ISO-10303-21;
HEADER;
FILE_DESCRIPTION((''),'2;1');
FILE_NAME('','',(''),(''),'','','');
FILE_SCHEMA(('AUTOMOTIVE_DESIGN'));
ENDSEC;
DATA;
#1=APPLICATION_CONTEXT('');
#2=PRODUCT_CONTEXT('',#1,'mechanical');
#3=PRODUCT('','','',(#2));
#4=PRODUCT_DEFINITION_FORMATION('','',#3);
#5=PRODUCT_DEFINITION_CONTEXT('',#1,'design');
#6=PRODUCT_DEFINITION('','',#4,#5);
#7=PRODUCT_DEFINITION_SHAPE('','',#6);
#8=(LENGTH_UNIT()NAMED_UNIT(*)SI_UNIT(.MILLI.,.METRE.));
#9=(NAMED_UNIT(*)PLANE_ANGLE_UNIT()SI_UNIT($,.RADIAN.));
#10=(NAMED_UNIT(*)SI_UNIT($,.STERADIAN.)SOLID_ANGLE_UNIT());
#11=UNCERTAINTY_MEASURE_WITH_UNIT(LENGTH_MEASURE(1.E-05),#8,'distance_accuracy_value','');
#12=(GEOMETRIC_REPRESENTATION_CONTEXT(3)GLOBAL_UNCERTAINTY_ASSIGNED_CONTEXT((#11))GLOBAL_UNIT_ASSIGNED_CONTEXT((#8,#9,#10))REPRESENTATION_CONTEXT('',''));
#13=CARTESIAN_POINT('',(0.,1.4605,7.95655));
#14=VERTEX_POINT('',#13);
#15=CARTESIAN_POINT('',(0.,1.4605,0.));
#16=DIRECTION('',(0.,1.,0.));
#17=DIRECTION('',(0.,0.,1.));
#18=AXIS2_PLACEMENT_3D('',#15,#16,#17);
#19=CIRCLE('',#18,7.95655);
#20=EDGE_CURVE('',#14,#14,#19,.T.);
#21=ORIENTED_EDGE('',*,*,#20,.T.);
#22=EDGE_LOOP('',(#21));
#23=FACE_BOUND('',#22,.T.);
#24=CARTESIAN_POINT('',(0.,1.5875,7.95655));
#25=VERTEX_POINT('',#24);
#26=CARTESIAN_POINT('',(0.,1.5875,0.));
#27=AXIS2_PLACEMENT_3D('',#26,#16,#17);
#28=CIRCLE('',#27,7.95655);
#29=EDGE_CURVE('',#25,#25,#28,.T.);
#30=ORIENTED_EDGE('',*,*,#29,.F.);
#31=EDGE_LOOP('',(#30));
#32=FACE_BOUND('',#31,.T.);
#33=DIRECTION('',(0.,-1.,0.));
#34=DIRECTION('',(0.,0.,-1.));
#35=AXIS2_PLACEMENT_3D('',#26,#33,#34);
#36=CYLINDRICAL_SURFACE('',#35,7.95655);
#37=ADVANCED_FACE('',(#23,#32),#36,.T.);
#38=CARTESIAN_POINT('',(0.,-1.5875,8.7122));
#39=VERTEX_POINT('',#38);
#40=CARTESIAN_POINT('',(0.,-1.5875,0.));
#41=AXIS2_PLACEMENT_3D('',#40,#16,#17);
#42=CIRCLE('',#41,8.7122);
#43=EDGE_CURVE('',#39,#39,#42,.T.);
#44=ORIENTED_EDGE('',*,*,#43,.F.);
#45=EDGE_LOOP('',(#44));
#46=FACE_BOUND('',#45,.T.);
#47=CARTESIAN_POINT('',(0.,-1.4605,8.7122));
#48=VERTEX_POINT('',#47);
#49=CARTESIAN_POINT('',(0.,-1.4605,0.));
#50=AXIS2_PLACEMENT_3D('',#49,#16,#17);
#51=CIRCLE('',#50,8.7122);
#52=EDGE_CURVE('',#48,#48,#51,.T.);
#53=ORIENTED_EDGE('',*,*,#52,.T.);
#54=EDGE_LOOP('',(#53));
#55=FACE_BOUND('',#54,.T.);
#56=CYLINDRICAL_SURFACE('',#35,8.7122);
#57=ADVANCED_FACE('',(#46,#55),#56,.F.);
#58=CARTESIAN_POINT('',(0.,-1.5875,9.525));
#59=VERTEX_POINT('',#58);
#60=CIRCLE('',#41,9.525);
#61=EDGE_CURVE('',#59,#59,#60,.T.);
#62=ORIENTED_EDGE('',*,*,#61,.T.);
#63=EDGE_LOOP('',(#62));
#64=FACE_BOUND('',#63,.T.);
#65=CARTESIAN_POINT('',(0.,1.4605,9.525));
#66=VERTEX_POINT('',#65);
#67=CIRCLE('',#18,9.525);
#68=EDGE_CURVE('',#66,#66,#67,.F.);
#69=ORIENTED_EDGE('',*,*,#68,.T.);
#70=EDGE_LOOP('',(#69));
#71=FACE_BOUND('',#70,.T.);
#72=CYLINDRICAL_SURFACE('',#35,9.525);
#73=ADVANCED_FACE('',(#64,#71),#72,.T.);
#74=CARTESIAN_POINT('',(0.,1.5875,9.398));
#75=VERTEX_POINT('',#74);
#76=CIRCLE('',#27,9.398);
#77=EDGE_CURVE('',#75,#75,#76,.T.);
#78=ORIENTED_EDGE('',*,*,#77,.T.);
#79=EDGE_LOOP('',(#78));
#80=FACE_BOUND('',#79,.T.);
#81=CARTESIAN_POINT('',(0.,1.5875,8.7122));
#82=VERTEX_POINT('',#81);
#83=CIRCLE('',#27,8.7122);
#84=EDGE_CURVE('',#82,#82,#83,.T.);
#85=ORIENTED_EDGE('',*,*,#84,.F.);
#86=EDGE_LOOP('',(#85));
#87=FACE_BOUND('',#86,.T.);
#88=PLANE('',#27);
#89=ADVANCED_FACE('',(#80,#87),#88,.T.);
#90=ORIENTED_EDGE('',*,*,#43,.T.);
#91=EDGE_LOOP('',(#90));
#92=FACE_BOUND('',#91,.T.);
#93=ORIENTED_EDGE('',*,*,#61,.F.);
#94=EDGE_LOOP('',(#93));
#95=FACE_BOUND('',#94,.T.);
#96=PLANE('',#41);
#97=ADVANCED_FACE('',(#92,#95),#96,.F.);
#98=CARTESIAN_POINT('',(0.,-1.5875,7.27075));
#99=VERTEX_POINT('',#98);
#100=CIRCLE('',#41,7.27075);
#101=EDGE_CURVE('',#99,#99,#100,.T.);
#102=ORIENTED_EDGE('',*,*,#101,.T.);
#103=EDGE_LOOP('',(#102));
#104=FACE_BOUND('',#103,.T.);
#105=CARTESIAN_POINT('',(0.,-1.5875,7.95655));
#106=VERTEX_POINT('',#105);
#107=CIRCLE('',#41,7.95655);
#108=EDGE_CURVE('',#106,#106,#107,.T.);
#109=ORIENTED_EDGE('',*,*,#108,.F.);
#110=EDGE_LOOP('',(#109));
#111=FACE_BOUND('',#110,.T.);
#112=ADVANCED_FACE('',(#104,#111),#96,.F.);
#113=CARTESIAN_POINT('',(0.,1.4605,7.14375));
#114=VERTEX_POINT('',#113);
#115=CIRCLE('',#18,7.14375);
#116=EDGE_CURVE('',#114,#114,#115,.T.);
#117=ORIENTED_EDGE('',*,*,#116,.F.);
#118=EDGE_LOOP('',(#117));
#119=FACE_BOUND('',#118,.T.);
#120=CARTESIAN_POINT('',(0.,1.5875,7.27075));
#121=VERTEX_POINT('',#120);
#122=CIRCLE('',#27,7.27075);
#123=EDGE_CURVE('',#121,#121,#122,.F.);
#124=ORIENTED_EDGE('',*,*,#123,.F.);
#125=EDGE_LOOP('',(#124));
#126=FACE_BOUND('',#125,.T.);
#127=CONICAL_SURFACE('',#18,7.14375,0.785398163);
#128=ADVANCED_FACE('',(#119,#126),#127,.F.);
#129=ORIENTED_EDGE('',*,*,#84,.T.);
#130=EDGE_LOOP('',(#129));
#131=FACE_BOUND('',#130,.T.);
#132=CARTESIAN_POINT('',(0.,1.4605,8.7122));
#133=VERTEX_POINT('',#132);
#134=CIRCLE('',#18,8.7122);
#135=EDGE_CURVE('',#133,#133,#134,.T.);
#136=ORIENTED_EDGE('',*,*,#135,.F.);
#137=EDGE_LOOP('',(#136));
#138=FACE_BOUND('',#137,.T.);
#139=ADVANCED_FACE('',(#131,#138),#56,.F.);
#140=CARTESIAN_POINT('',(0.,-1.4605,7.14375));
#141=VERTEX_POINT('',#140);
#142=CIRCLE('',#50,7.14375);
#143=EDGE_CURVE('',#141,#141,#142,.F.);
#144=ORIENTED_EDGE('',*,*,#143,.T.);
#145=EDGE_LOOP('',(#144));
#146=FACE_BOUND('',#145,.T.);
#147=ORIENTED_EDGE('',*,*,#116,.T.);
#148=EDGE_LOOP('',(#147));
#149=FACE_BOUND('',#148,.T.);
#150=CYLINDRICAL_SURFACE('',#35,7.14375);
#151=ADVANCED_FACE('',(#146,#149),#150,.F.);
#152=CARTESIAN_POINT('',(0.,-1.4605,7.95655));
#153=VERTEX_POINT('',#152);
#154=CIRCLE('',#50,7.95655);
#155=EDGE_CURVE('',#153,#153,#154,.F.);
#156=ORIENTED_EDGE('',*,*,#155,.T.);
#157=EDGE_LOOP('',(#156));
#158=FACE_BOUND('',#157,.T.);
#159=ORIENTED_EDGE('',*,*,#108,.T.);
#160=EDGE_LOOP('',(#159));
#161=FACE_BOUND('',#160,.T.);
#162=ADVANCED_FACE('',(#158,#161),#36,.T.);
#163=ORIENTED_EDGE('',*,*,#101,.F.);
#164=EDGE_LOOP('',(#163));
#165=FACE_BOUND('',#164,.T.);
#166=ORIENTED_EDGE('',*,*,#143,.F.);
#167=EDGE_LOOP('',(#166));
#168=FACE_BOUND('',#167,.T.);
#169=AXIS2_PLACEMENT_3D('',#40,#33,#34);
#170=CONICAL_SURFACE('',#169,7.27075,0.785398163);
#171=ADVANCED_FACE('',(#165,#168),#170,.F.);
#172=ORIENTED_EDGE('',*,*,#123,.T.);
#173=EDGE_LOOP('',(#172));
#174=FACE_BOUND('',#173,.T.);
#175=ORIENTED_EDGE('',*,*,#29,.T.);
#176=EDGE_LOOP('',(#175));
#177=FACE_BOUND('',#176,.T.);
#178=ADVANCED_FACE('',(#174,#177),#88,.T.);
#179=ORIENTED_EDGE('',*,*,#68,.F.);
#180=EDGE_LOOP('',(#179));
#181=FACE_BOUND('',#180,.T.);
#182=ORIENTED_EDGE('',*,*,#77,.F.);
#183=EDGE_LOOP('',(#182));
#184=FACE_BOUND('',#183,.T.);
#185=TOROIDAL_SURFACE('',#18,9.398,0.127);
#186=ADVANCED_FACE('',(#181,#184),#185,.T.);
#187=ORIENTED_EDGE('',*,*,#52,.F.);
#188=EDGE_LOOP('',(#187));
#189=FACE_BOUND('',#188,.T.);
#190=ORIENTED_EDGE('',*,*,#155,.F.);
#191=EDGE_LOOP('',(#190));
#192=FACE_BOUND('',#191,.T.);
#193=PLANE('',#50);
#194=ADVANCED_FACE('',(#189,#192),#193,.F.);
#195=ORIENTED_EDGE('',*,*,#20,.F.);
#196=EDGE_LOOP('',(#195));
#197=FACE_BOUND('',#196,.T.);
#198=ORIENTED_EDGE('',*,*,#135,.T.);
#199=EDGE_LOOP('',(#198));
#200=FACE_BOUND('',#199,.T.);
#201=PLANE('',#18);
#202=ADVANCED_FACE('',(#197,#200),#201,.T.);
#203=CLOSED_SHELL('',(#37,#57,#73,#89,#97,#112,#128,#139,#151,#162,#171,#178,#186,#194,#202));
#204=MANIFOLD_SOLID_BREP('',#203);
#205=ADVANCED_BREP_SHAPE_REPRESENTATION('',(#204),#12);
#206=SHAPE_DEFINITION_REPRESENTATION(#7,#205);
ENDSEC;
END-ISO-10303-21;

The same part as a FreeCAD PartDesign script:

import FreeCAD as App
import Part
import Sketcher
Q = App.Units.Quantity


def edges_at(feature, points):
    """Names of the edges that pass closest to the given points."""
    edges = feature.Shape.Edges
    near = lambda p: min(range(len(edges)), key=lambda i: edges[i].distToShape(Part.Vertex(*p))[0])
    return sorted({f"Edge{near(p) + 1}" for p in points})

doc = App.newDocument("Part")
body = doc.addObject("PartDesign::Body", "Body")

# Sketch on XZ plane
sketch1 = doc.addObject("Sketcher::SketchObject", "Sketch")
body.addObject(sketch1)
sketch1.AttachmentSupport = (doc.XZ_Plane, [""])
sketch1.MapMode = "FlatFace"
sketch1.addGeometry([
    Part.Circle(App.Vector(0, 0, 0), App.Vector(0, 0, 1), 10),
    Part.Circle(App.Vector(0, 0, 0), App.Vector(0, 0, 1), 9),
], False)
sketch1.addConstraint([
    Sketcher.Constraint("Coincident", 0, 3, -1, 1),
    Sketcher.Constraint("Coincident", 1, 3, -1, 1),
    Sketcher.Constraint("Diameter", 0, Q("0.75 in")),
    Sketcher.Constraint("Diameter", 1, Q("0.686 in")),
])
pad1 = doc.addObject("PartDesign::Pad", "Pad")
body.addObject(pad1)
pad1.Profile = sketch1
pad1.Length = Q("0.125 in")
pad1.Midplane = True
doc.recompute()

fillet = doc.addObject("PartDesign::Fillet", "Fillet")
body.addObject(fillet)
fillet.Base = (pad1, edges_at(pad1, [(0, 1.587, -9.525)]))
fillet.Radius = Q("0.005 in")
body2 = doc.addObject("PartDesign::Body", "Body001")

# Sketch on XZ plane
sketch2 = doc.addObject("Sketcher::SketchObject", "Sketch001")
body2.addObject(sketch2)
sketch2.AttachmentSupport = (doc.getObject("XZ_Plane001"), [""])
sketch2.MapMode = "FlatFace"
sketch2.addGeometry([
    Part.Circle(App.Vector(0, 0, 0), App.Vector(0, 0, 1), 8),
    Part.Circle(App.Vector(0, 0, 0), App.Vector(0, 0, 1), 7),
], False)
sketch2.addConstraint([
    Sketcher.Constraint("Coincident", 0, 3, -1, 1),
    Sketcher.Constraint("Coincident", 1, 3, -1, 1),
    Sketcher.Constraint("Diameter", 1, Q("0.5625 in")),
    Sketcher.Constraint("Diameter", 0, Q("0.6265 in")),
])
pad2 = doc.addObject("PartDesign::Pad", "Pad001")
body2.addObject(pad2)
pad2.Profile = sketch2
pad2.Length = Q("0.125 in")
pad2.Midplane = True
doc.recompute()

chamfer = doc.addObject("PartDesign::Chamfer", "Chamfer")
body2.addObject(chamfer)
chamfer.Base = (pad2, edges_at(pad2, [(0, -1.587, -7.144), (0, 1.587, -7.144)]))
chamfer.Size = Q("0.005 in")
body.AllowCompound = True
doc.recompute()

boolean = doc.addObject("PartDesign::Boolean", "Boolean")
body.addObject(boolean)
boolean.Type = "Fuse"
boolean.addObjects([body2])

# Sketch on XZ plane
sketch3 = doc.addObject("Sketcher::SketchObject", "Sketch002")
body.addObject(sketch3)
sketch3.AttachmentSupport = (doc.XZ_Plane, [""])
sketch3.MapMode = "FlatFace"
sketch3.addGeometry([
    Part.Circle(App.Vector(0, 0, 0), App.Vector(0, 0, 1), 9),
    Part.Circle(App.Vector(0, 0, 0), App.Vector(0, 0, 1), 8),
], False)
sketch3.addConstraint([
    Sketcher.Constraint("Coincident", 0, 3, -1, 1),
    Sketcher.Constraint("Coincident", 1, 3, -1, 1),
    Sketcher.Constraint("Diameter", 0, Q("0.686 in")),
    Sketcher.Constraint("Diameter", 1, Q("0.6265 in")),
])
pad3 = doc.addObject("PartDesign::Pad", "Pad002")
body.addObject(pad3)
pad3.Profile = sketch3
pad3.Length = Q("0.115 in")
pad3.Midplane = True

doc.recompute()
